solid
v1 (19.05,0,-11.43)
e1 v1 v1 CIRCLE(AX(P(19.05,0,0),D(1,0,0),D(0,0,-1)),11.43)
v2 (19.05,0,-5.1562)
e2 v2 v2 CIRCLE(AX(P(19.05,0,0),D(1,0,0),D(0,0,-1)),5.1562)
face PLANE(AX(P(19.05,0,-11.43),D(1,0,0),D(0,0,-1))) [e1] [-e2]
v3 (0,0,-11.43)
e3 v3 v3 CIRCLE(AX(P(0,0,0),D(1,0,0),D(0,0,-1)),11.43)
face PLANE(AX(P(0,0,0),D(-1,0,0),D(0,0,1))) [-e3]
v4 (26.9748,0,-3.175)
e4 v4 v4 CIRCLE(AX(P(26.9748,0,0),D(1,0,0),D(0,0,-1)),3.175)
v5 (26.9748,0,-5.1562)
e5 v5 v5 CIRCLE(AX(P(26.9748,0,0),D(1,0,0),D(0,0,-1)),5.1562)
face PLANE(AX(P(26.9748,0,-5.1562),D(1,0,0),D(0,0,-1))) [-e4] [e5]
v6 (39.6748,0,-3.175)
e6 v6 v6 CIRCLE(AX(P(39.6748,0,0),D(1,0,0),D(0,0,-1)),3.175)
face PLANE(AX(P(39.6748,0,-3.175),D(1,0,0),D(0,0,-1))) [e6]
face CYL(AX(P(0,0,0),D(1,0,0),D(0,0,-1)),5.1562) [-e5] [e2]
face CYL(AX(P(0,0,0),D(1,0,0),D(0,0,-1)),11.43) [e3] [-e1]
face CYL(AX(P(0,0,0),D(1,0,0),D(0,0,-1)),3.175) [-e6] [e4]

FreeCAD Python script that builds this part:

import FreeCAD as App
import Part
import Sketcher

V = App.Vector
Q = App.Units.Quantity


def add_polygon(sketch, points):
    """Adds a closed chain of lines whose ends are joined by coincident constraints."""
    first, n = sketch.GeometryCount, len(points)
    for a, b in zip(points, points[1:] + points[:1]):
        sketch.addGeometry(Part.LineSegment(App.Vector(*a, 0), App.Vector(*b, 0)), False)
    for i in range(n):
        sketch.addConstraint(Sketcher.Constraint("Coincident", first + i, 2, first + (i + 1) % n, 1))

doc = App.newDocument("Part")
body = doc.addObject("PartDesign::Body", "Body")

# Sketch on XZ plane
sketch1 = doc.addObject("Sketcher::SketchObject", "Sketch")
body.addObject(sketch1)
sketch1.AttachmentSupport = (doc.XZ_Plane, [""])
sketch1.MapMode = "FlatFace"
add_polygon(sketch1, [(0, -11.43), (0, 0), (39.6748, 0), (39.6748, -3.175), (26.9748, -3.175), (26.9748, -5.1562), (19.05, -5.1562), (19.05, -11.43)])  # lines 0-7
sketch1.addConstraint([
    Sketcher.Constraint("Vertical", 0),
    Sketcher.Constraint("Horizontal", 1),
    Sketcher.Constraint("Vertical", 2),
    Sketcher.Constraint("Horizontal", 3),
    Sketcher.Constraint("Vertical", 4),
    Sketcher.Constraint("Horizontal", 5),
    Sketcher.Constraint("Vertical", 6),
    Sketcher.Constraint("Horizontal", 7),
    Sketcher.Constraint("Coincident", 0, 2, -1, 1),
    Sketcher.Constraint("DistanceX", 3, 2, 3, 1, Q("0.5 in")),
    Sketcher.Constraint("DistanceX", 7, 2, 7, 1, Q("0.75 in")),
    Sketcher.Constraint("DistanceY", 0, 1, 0, 2, Q("0.45 in")),
    Sketcher.Constraint("DistanceX", 1, 1, 1, 2, Q("1.562 in")),
    Sketcher.Constraint("DistanceY", 2, 2, 2, 1, Q("0.125 in")),
    Sketcher.Constraint("DistanceY", 4, 2, 4, 1, Q("0.078 in")),
])
revolution = doc.addObject("PartDesign::Revolution", "Revolution")
body.addObject(revolution)
revolution.Profile = sketch1
revolution.ReferenceAxis = (sketch1, ["H_Axis"])
revolution.Angle = 360

doc.recompute()
